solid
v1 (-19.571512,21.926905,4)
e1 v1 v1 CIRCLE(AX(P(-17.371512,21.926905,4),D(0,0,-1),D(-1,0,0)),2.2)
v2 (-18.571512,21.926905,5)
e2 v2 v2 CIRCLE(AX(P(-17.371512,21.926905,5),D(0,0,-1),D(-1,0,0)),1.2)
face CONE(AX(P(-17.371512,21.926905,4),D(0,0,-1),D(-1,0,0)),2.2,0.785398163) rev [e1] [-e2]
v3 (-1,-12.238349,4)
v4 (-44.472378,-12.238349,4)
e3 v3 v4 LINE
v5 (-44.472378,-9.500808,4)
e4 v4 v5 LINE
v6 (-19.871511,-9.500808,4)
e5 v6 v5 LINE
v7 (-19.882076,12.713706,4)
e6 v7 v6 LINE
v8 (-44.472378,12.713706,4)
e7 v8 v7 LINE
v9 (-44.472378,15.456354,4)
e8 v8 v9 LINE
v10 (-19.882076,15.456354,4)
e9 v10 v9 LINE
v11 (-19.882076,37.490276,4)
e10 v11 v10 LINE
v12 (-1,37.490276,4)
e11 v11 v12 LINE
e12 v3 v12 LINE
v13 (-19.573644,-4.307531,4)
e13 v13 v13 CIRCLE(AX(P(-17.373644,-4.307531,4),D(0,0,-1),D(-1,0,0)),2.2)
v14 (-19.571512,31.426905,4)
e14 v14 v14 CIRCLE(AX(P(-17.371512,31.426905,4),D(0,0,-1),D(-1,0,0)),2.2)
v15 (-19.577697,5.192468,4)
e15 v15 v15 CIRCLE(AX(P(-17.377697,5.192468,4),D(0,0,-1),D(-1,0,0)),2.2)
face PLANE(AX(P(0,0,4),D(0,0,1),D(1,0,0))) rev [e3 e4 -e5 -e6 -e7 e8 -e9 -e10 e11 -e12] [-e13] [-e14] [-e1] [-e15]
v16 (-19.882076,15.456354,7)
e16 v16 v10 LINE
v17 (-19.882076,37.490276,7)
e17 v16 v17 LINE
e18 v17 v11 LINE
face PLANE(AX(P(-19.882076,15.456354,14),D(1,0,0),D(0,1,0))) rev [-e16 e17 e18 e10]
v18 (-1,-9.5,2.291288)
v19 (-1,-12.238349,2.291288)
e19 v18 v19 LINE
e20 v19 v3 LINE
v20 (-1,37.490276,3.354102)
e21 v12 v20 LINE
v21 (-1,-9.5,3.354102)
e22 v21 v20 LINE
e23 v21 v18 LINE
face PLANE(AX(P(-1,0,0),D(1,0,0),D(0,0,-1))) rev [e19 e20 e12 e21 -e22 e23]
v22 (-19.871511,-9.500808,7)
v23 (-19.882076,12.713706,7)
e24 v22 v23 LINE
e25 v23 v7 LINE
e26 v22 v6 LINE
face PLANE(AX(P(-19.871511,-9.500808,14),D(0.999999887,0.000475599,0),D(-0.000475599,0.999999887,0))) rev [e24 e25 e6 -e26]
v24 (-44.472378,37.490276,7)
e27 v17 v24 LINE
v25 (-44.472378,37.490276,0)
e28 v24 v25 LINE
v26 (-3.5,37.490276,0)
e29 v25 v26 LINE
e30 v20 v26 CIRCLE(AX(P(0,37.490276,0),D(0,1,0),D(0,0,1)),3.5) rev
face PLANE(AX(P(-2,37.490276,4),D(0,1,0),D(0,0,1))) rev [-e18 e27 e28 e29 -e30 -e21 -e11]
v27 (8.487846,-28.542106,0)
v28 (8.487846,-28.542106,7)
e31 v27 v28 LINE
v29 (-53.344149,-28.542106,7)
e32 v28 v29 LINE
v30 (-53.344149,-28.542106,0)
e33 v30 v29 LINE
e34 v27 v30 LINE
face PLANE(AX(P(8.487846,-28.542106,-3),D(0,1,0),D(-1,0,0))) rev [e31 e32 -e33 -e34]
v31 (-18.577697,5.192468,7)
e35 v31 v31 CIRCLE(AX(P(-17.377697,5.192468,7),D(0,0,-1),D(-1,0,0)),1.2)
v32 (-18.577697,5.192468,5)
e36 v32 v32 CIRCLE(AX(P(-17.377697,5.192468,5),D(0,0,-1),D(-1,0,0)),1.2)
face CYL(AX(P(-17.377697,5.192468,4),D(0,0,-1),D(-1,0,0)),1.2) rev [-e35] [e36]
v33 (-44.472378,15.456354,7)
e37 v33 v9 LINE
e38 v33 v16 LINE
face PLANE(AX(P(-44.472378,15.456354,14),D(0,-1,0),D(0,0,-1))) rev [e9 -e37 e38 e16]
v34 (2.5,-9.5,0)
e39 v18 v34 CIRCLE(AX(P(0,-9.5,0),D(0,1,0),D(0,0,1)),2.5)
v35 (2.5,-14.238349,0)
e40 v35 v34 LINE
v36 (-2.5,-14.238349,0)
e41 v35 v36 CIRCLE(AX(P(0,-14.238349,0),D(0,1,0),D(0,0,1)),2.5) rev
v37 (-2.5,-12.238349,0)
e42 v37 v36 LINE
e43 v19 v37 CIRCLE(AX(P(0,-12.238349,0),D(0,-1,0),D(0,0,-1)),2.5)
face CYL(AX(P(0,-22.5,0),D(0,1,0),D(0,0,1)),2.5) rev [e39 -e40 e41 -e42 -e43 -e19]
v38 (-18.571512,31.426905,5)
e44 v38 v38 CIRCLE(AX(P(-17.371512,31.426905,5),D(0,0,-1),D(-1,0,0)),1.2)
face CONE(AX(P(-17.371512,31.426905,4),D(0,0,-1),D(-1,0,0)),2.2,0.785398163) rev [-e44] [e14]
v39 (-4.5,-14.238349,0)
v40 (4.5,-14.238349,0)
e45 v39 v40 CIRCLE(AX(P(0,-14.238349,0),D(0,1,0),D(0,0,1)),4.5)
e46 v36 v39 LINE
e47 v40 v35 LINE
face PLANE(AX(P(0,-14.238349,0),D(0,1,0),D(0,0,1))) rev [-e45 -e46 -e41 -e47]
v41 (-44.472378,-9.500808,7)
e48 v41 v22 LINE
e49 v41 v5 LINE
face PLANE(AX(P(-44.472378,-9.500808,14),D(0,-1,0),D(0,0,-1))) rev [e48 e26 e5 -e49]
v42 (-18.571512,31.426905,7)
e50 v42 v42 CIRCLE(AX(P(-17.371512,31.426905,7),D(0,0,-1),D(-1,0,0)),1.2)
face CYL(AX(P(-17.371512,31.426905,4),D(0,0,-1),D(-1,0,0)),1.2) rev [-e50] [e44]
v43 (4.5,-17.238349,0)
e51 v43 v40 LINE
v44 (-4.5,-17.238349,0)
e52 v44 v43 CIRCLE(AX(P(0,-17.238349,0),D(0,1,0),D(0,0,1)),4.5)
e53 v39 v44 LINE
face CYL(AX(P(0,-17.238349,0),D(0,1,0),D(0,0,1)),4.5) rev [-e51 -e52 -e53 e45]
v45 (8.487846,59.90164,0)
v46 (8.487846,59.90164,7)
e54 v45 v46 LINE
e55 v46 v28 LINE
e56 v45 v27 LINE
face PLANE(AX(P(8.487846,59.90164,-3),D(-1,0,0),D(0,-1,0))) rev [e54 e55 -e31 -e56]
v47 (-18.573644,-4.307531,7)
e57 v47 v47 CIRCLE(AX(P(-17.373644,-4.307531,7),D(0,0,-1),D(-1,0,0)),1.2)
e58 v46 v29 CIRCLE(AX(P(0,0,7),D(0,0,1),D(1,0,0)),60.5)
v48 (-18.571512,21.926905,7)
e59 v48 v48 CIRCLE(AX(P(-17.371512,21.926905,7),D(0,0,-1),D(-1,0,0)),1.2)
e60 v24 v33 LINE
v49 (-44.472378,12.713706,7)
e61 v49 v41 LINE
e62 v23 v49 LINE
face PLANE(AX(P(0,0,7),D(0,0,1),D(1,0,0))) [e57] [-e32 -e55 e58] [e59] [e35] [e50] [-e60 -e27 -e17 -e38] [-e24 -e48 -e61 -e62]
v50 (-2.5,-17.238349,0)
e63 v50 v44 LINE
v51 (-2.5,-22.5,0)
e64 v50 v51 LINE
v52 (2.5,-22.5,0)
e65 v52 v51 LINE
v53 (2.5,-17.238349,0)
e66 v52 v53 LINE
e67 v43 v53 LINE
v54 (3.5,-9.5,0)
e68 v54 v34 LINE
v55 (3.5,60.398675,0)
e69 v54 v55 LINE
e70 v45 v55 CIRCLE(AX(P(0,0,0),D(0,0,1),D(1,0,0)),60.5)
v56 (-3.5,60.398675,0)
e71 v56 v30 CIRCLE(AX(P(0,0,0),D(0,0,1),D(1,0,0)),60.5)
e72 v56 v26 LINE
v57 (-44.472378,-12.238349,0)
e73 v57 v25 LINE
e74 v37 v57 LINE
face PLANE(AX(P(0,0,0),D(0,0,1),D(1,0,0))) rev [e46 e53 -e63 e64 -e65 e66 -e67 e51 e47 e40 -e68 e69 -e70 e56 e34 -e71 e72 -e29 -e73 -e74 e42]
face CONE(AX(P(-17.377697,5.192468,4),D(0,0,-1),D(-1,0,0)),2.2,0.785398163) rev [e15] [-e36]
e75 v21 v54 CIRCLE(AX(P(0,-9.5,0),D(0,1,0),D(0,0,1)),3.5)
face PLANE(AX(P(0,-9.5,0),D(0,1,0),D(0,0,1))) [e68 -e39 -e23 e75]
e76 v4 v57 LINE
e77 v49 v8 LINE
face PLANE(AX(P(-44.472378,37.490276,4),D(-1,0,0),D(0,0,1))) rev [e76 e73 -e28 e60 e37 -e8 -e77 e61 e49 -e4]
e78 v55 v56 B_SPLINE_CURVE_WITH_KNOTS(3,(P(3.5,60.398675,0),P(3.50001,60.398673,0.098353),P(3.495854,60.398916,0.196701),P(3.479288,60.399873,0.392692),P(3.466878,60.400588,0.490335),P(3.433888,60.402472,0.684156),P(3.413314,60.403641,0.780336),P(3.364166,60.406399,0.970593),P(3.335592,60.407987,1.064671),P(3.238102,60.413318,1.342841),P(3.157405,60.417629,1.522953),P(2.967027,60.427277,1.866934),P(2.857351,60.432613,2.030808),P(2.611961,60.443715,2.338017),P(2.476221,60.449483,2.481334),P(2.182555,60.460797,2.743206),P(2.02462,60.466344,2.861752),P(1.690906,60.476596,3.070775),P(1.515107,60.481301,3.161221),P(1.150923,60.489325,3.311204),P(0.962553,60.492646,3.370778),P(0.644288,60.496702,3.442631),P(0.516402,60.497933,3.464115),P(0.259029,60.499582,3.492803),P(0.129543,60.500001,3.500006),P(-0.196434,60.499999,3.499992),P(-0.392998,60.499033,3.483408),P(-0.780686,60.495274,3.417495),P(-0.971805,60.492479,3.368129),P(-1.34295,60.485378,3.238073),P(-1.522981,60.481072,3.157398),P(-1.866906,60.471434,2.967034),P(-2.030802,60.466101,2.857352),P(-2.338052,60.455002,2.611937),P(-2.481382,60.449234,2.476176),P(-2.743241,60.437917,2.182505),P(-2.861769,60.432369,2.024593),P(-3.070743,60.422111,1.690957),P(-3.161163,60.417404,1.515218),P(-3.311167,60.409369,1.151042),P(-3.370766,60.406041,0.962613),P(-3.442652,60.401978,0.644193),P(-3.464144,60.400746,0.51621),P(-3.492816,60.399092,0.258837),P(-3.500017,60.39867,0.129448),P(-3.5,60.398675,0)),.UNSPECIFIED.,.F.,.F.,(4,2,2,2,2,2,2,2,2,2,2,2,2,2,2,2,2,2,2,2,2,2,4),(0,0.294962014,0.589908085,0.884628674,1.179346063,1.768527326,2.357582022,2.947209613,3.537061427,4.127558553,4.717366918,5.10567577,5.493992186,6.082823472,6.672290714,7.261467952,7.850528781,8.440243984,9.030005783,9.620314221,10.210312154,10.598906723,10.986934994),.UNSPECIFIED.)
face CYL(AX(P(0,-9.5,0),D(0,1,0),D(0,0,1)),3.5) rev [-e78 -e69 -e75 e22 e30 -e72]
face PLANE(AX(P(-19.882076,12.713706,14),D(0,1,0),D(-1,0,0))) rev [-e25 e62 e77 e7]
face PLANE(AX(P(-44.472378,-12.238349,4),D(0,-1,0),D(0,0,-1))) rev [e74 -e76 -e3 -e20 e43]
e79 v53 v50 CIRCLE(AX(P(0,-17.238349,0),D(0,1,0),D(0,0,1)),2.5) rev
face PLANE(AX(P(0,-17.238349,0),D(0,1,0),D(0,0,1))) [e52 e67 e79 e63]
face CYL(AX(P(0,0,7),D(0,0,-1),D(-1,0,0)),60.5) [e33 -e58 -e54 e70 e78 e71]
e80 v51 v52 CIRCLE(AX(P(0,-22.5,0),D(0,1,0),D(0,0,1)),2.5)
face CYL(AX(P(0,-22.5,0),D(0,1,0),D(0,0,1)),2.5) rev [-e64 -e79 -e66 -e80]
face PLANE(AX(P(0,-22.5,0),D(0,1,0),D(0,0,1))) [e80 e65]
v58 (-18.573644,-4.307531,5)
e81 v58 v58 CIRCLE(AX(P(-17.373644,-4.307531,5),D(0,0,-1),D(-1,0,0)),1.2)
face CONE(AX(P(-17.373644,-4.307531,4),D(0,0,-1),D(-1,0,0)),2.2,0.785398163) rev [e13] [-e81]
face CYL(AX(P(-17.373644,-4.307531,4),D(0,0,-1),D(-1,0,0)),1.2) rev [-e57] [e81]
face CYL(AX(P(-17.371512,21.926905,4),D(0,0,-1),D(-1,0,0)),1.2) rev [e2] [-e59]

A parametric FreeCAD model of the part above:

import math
import FreeCAD as App
import Part
import Sketcher
from FreeCAD import Vector
Q = App.Units.Quantity

doc = App.newDocument("Part")
body = doc.addObject("PartDesign::Body", "Body")

sketch1 = doc.addObject("Sketcher::SketchObject", "Sketch")
body.addObject(sketch1)
sketch1.AttachmentSupport = (doc.XY_Plane, [""])
sketch1.MapMode = "FlatFace"
sketch1.addGeometry(Part.Circle(Vector(0, 0, 0), Vector(0, 0, 1), 60), False)
sketch1.addConstraint([
    Sketcher.Constraint("Coincident", 0, 3, -1, 1),
    Sketcher.Constraint("Diameter", 0, Q("121 mm")),
])
pad1 = doc.addObject("PartDesign::Pad", "Pad")
body.addObject(pad1)
pad1.Profile = sketch1
pad1.Length = 7

sketch2 = doc.addObject("Sketcher::SketchObject", "Sketch001")
body.addObject(sketch2)
sketch2.AttachmentSupport = (doc.XZ_Plane, [""])
sketch2.MapMode = "FlatFace"
sketch2.AttachmentOffset = App.Placement(Vector(0, 0, -60.5), App.Rotation())
sketch2.addGeometry(Part.Circle(Vector(0, 0, 0), Vector(0, 0, 1), 3.5), False)
sketch2.addConstraint([
    Sketcher.Constraint("Coincident", 0, 3, -1, 1),
    Sketcher.Constraint("Diameter", 0, Q("7 mm")),
])
pocket1 = doc.addObject("PartDesign::Pocket", "Pocket")
body.addObject(pocket1)
pocket1.Profile = sketch2
pocket1.Length = 70
pocket1.Reversed = True

sketch3 = doc.addObject("Sketcher::SketchObject", "Sketch002")
body.addObject(sketch3)
sketch3.AttachmentSupport = (doc.XY_Plane, [""])
sketch3.MapMode = "FlatFace"
sketch3.AttachmentOffset = App.Placement(Vector(0, 0, 7), App.Rotation())
sketch3.addGeometry([
    Part.LineSegment(Vector(8, 60, 0), Vector(8, -29, 0)),
    Part.LineSegment(Vector(8, -29, 0), Vector(-53, -29, 0)),
    Part.ArcOfCircle(Part.Circle(Vector(38, -27, 0), Vector(0, 0, 1), 91), math.radians(-179), math.radians(109)),
], False)
sketch3.addConstraint([
    Sketcher.Constraint("Coincident", 0, 2, 1, 1),
    Sketcher.Constraint("Coincident", 1, 2, 2, 1),
    Sketcher.Constraint("Coincident", 2, 2, 0, 1),
    Sketcher.Constraint("Vertical", 0),
    Sketcher.Constraint("Horizontal", 1),
    Sketcher.Constraint("Radius", 2, Q("91.430573 mm")),
    Sketcher.Constraint("DistanceY", 2, 3, -1, 1, Q("26.6124 mm")),
    Sketcher.Constraint("DistanceX", 1, 2, 1, 1, Q("61.831995 mm")),
    Sketcher.Constraint("DistanceY", 0, 2, 0, 1, Q("88.443746 mm")),
    Sketcher.Constraint("DistanceX", -1, 1, 2, 3, Q("38.066058 mm")),
])
pocket2 = doc.addObject("PartDesign::Pocket", "Pocket001")
body.addObject(pocket2)
pocket2.Profile = sketch3
pocket2.Length = 10

sketch4 = doc.addObject("Sketcher::SketchObject", "Sketch003")
body.addObject(sketch4)
sketch4.AttachmentSupport = (doc.XY_Plane, [""])
sketch4.MapMode = "FlatFace"
sketch4.addGeometry([
    Part.LineSegment(Vector(-44, -12, 0), Vector(-44, 37, 0)),
    Part.LineSegment(Vector(-44, 37, 0), Vector(-2, 37, 0)),
    Part.LineSegment(Vector(-2, 37, 0), Vector(-2, -12, 0)),
    Part.LineSegment(Vector(-2, -12, 0), Vector(-44, -12, 0)),
], False)
sketch4.addConstraint([
    Sketcher.Constraint("Coincident", 0, 2, 1, 1),
    Sketcher.Constraint("Coincident", 1, 2, 2, 1),
    Sketcher.Constraint("Coincident", 2, 2, 3, 1),
    Sketcher.Constraint("Coincident", 3, 2, 0, 1),
    Sketcher.Constraint("Vertical", 0),
    Sketcher.Constraint("Horizontal", 1),
    Sketcher.Constraint("Vertical", 2),
    Sketcher.Constraint("Horizontal", 3),
    Sketcher.Constraint("DistanceX", 1, 2, -1, 1, Q("2 mm")),
    Sketcher.Constraint("DistanceX", 1, 1, 1, 2, Q("42.472378 mm")),
    Sketcher.Constraint("DistanceY", 0, 1, 0, 2, Q("49.728625 mm")),
    Sketcher.Constraint("DistanceY", 2, 2, -1, 1, Q("12.238349 mm")),
])
pocket3 = doc.addObject("PartDesign::Pocket", "Pocket002")
body.addObject(pocket3)
pocket3.Profile = sketch4
pocket3.Length = 4
pocket3.Reversed = True

sketch5 = doc.addObject("Sketcher::SketchObject", "Sketch004")
body.addObject(sketch5)
sketch5.AttachmentSupport = (doc.YZ_Plane, [""])
sketch5.MapMode = "FlatFace"
sketch5.AttachmentOffset = App.Placement(Vector(0, 0, -2), App.Rotation())
sketch5.addGeometry([
    Part.LineSegment(Vector(37.5, 4, 0), Vector(37.5, 2.9, 0)),
    Part.LineSegment(Vector(37.5, 2.9, 0), Vector(-12.2, 2.9, 0)),
    Part.LineSegment(Vector(-12.2, 2.9, 0), Vector(-12.2, 4, 0)),
    Part.LineSegment(Vector(-12.2, 4, 0), Vector(37.5, 4, 0)),
], False)
sketch5.addConstraint([
    Sketcher.Constraint("Coincident", 0, 2, 1, 1),
    Sketcher.Constraint("Coincident", 1, 2, 2, 1),
    Sketcher.Constraint("Coincident", 2, 2, 3, 1),
    Sketcher.Constraint("Coincident", 3, 2, 0, 1),
    Sketcher.Constraint("Vertical", 0),
    Sketcher.Constraint("Horizontal", 1),
    Sketcher.Constraint("Vertical", 2),
    Sketcher.Constraint("Horizontal", 3),
    Sketcher.Constraint("DistanceY", -1, 1, 2, 2, Q("4 mm")),
    Sketcher.Constraint("DistanceY", 0, 2, 0, 1, Q("1.127719 mm")),
    Sketcher.Constraint("DistanceX", 1, 2, 1, 1, Q("49.728625 mm")),
    Sketcher.Constraint("DistanceX", 1, 2, -1, 1, Q("12.238349 mm")),
])
pocket4 = doc.addObject("PartDesign::Pocket", "Pocket003")
body.addObject(pocket4)
pocket4.Profile = sketch5
pocket4.Length = 1
pocket4.Reversed = True

sketch6 = doc.addObject("Sketcher::SketchObject", "Sketch005")
body.addObject(sketch6)
sketch6.AttachmentSupport = (doc.XY_Plane, [""])
sketch6.MapMode = "FlatFace"
sketch6.AttachmentOffset = App.Placement(Vector(0, 0, 4), App.Rotation())
sketch6.addGeometry([
    Part.Circle(Vector(-17.4, -4.3, 0), Vector(0, 0, 1), 1.2),
    Part.Circle(Vector(-17.4, 5.2, 0), Vector(0, 0, 1), 1.2),
    Part.Circle(Vector(-17.4, 21.9, 0), Vector(0, 0, 1), 1.2),
    Part.Circle(Vector(-17.4, 31.4, 0), Vector(0, 0, 1), 1.2),
], False)
sketch6.addConstraint([
    Sketcher.Constraint("Equal", 0, 1),
    Sketcher.Constraint("Equal", 1, 2),
    Sketcher.Constraint("Equal", 2, 3),
    Sketcher.Constraint("Vertical", 2, 3, 3, 3),
    Sketcher.Constraint("Diameter", 0, Q("2.4 mm")),
    Sketcher.Constraint("DistanceY", 0, 3, 1, 3, Q("9.499999 mm")),
    Sketcher.Constraint("DistanceY", 2, 3, 3, 3, Q("9.5 mm")),
    Sketcher.Constraint("DistanceY", 0, 3, -1, 1, Q("4.307531 mm")),
    Sketcher.Constraint("DistanceX", 0, 3, 2, 3, Q("0.002132 mm")),
    Sketcher.Constraint("DistanceX", 0, 3, -1, 1, Q("17.373644 mm")),
    Sketcher.Constraint("DistanceX", 1, 3, -1, 1, Q("17.377697 mm")),
    Sketcher.Constraint("DistanceY", -1, 1, 2, 3, Q("21.926905 mm")),
])
doc.recompute()
hole = doc.addObject("PartDesign::Hole", "Hole")
body.addObject(hole)
hole.Profile = sketch6
hole.ThreadType = "None"
hole.Diameter = 2.4
hole.DepthType = "ThroughAll"
hole.HoleCutType = "Countersink"
hole.HoleCutDiameter = 4.4
hole.HoleCutCountersinkAngle = 90
hole.Reversed = True

sketch7 = doc.addObject("Sketcher::SketchObject", "Sketch006")
body.addObject(sketch7)
sketch7.AttachmentSupport = (doc.XY_Plane, [""])
sketch7.MapMode = "FlatFace"
sketch7.AttachmentOffset = App.Placement(Vector(0, 0, 4), App.Rotation())
sketch7.addGeometry([
    Part.LineSegment(Vector(-44, 15, 0), Vector(-44, 37, 0)),
    Part.LineSegment(Vector(-44, 37, 0), Vector(-20, 37, 0)),
    Part.LineSegment(Vector(-20, 37, 0), Vector(-20, 15, 0)),
    Part.LineSegment(Vector(-20, 15, 0), Vector(-44, 15, 0)),
    Part.LineSegment(Vector(-44, 13, 0), Vector(-20, 13, 0)),
    Part.LineSegment(Vector(-20, 13, 0), Vector(-20, -10, 0)),
    Part.LineSegment(Vector(-20, -10, 0), Vector(-44, -10, 0)),
    Part.LineSegment(Vector(-44, -10, 0), Vector(-44, 13, 0)),
], False)
sketch7.addConstraint([
    Sketcher.Constraint("Coincident", 0, 2, 1, 1),
    Sketcher.Constraint("Coincident", 1, 2, 2, 1),
    Sketcher.Constraint("Coincident", 2, 2, 3, 1),
    Sketcher.Constraint("Coincident", 3, 2, 0, 1),
    Sketcher.Constraint("Coincident", 4, 2, 5, 1),
    Sketcher.Constraint("Coincident", 5, 2, 6, 1),
    Sketcher.Constraint("Coincident", 6, 2, 7, 1),
    Sketcher.Constraint("Coincident", 7, 2, 4, 1),
    Sketcher.Constraint("Vertical", 0),
    Sketcher.Constraint("Horizontal", 1),
    Sketcher.Constraint("Vertical", 2),
    Sketcher.Constraint("Horizontal", 3),
    Sketcher.Constraint("Horizontal", 4),
    Sketcher.Constraint("Horizontal", 6),
    Sketcher.Constraint("Vertical", 7),
    Sketcher.Constraint("Vertical", 2, 2, 4, 2),
    Sketcher.Constraint("Vertical", 3, 2, 6, 2),
    Sketcher.Constraint("DistanceX", 1, 1, 1, 2, Q("24.590302 mm")),
    Sketcher.Constraint("DistanceY", 0, 1, 0, 2, Q("22.033921 mm")),
    Sketcher.Constraint("DistanceX", 6, 2, 6, 1, Q("24.600867 mm")),
    Sketcher.Constraint("DistanceY", 7, 1, 7, 2, Q("22.214513 mm")),
    Sketcher.Constraint("DistanceX", 5, 2, -1, 1, Q("19.871511 mm")),
    Sketcher.Constraint("DistanceY", 4, 2, 2, 2, Q("2.742649 mm")),
    Sketcher.Constraint("DistanceY", -1, 1, 0, 2, Q("37.490276 mm")),
])
pocket5 = doc.addObject("PartDesign::Pocket", "Pocket004")
body.addObject(pocket5)
pocket5.Profile = sketch7
pocket5.Length = 10
pocket5.Reversed = True

sketch8 = doc.addObject("Sketcher::SketchObject", "Sketch007")
body.addObject(sketch8)
sketch8.AttachmentSupport = (doc.XZ_Plane, [""])
sketch8.MapMode = "FlatFace"
sketch8.AttachmentOffset = App.Placement(Vector(0, 0, 9.5), App.Rotation())
sketch8.addGeometry(Part.Circle(Vector(0, 0, 0), Vector(0, 0, 1), 2.5), False)
sketch8.addConstraint([
    Sketcher.Constraint("Coincident", 0, 3, -1, 1),
    Sketcher.Constraint("Diameter", 0, Q("5 mm")),
])
pocket6 = doc.addObject("PartDesign::Pocket", "Pocket005")
body.addObject(pocket6)
pocket6.Profile = sketch8
pocket6.Length = 13
pocket6.Reversed = True

sketch9 = doc.addObject("Sketcher::SketchObject", "Sketch008")
body.addObject(sketch9)
sketch9.AttachmentSupport = (doc.XZ_Plane, [""])
sketch9.MapMode = "FlatFace"
sketch9.AttachmentOffset = App.Placement(Vector(0, 0, 15.738349), App.Rotation())
sketch9.addGeometry(Part.Circle(Vector(0, 0, 0), Vector(0, 0, 1), 4.5), False)
sketch9.addConstraint([
    Sketcher.Constraint("Coincident", 0, 3, -1, 1),
    Sketcher.Constraint("Diameter", 0, Q("9 mm")),
])
pocket7 = doc.addObject("PartDesign::Pocket", "Pocket006")
body.addObject(pocket7)
pocket7.Profile = sketch9
pocket7.Length = 3
pocket7.Midplane = True

sketch10 = doc.addObject("Sketcher::SketchObject", "Sketch009")
body.addObject(sketch10)
sketch10.AttachmentSupport = (doc.YZ_Plane, [""])
sketch10.MapMode = "FlatFace"
sketch10.AttachmentOffset = App.Placement(Vector(0, 0, -2), App.Rotation())
sketch10.addGeometry([
    Part.LineSegment(Vector(-9.5, 2.9, 0), Vector(-9.5, 1.5, 0)),
    Part.LineSegment(Vector(-9.5, 1.5, 0), Vector(-12.2, 1.5, 0)),
    Part.LineSegment(Vector(-12.2, 1.5, 0), Vector(-12.2, 2.9, 0)),
    Part.LineSegment(Vector(-12.2, 2.9, 0), Vector(-9.5, 2.9, 0)),
], False)
sketch10.addConstraint([
    Sketcher.Constraint("Coincident", 0, 2, 1, 1),
    Sketcher.Constraint("Coincident", 1, 2, 2, 1),
    Sketcher.Constraint("Coincident", 2, 2, 3, 1),
    Sketcher.Constraint("Coincident", 3, 2, 0, 1),
    Sketcher.Constraint("Vertical", 0),
    Sketcher.Constraint("Horizontal", 1),
    Sketcher.Constraint("Vertical", 2),
    Sketcher.Constraint("Horizontal", 3),
    Sketcher.Constraint("DistanceX", 0, 2, -1, 1, Q("9.5 mm")),
    Sketcher.Constraint("DistanceY", -1, 1, 0, 2, Q("1.5 mm")),
    Sketcher.Constraint("DistanceX", 1, 2, 1, 1, Q("2.738349 mm")),
    Sketcher.Constraint("DistanceY", 0, 2, 0, 1, Q("1.372281 mm")),
])
pocket8 = doc.addObject("PartDesign::Pocket", "Pocket007")
body.addObject(pocket8)
pocket8.Profile = sketch10
pocket8.Length = 1
pocket8.Reversed = True

doc.recompute()
